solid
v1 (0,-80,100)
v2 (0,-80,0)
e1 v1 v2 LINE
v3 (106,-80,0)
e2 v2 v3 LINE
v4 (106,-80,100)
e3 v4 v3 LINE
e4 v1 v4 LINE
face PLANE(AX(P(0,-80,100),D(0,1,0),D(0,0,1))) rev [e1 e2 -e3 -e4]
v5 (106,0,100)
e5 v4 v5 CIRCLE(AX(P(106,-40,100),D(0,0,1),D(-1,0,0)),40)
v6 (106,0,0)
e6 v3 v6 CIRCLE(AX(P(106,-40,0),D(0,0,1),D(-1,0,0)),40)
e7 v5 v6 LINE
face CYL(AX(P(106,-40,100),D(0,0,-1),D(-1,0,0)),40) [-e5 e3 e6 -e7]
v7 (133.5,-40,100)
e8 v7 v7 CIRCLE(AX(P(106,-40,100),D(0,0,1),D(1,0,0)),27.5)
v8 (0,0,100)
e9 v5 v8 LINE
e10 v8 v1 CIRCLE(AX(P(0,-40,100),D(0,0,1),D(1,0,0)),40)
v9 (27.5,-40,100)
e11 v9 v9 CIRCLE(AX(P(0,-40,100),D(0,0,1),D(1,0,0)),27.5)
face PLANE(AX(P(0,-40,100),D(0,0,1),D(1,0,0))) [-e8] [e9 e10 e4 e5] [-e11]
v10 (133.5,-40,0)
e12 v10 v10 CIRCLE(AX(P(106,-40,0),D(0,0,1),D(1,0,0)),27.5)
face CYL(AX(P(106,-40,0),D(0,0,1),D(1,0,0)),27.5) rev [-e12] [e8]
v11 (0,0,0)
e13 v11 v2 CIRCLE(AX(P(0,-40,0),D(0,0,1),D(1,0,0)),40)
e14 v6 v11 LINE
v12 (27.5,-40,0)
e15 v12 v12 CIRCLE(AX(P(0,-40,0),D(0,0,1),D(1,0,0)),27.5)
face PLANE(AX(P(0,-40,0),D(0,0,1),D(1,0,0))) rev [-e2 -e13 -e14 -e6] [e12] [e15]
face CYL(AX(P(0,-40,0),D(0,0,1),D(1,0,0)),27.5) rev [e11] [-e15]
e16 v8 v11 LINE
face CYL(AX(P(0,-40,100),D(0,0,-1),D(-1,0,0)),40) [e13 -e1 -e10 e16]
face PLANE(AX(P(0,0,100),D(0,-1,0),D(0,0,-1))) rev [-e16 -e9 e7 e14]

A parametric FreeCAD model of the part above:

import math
import FreeCAD as App
import Part
import Sketcher
Q = App.Units.Quantity

doc = App.newDocument("Part")
body = doc.addObject("PartDesign::Body", "Body")

sketch1 = body.newObject("Sketcher::SketchObject", "Sketch")
sketch1.AttachmentSupport = (doc.getObject("XY_Plane"), [""])
sketch1.MapMode = "FlatFace"
sketch1.addGeometry(Part.LineSegment(App.Vector(106, 0, 0), App.Vector(0, 0, 0)), False)
sketch1.addGeometry(Part.ArcOfCircle(Part.Circle(App.Vector(0, -40, 0), App.Vector(0, 0, 1), 40), math.radians(90), math.radians(270)), False)
sketch1.addGeometry(Part.LineSegment(App.Vector(0, -80, 0), App.Vector(106, -80, 0)), False)
sketch1.addGeometry(Part.ArcOfCircle(Part.Circle(App.Vector(106, -40, 0), App.Vector(0, 0, 1), 40), math.radians(-90), math.radians(90)), False)
sketch1.addConstraint(Sketcher.Constraint("Tangent", 0, 2, 1, 1))
sketch1.addConstraint(Sketcher.Constraint("Tangent", 1, 2, 2, 1))
sketch1.addConstraint(Sketcher.Constraint("Tangent", 2, 2, 3, 1))
sketch1.addConstraint(Sketcher.Constraint("Tangent", 3, 2, 0, 1))
sketch1.addConstraint(Sketcher.Constraint("Horizontal", 0))
sketch1.addConstraint(Sketcher.Constraint("Horizontal", 2))
sketch1.addConstraint(Sketcher.Constraint("Coincident", 0, 2, -1, 1))
sketch1.addConstraint(Sketcher.Constraint("Radius", 1, Q("40 mm")))
sketch1.addConstraint(Sketcher.Constraint("DistanceX", 0, 2, 0, 1, Q("106 mm")))
pad1 = body.newObject("PartDesign::Pad", "Pad")
pad1.Profile = sketch1
pad1.Length = 100

sketch2 = body.newObject("Sketcher::SketchObject", "Sketch001")
sketch2.AttachmentSupport = (doc.getObject("XY_Plane"), [""])
sketch2.MapMode = "FlatFace"
sketch2.AttachmentOffset = App.Placement(App.Vector(0, 0, 100), App.Rotation())
sketch2.addGeometry(Part.Circle(App.Vector(0, -40, 0), App.Vector(0, 0, 1), 28), False)
sketch2.addGeometry(Part.Circle(App.Vector(106, -40, 0), App.Vector(0, 0, 1), 28), False)
sketch2.addConstraint(Sketcher.Constraint("Equal", 0, 1))
sketch2.addConstraint(Sketcher.Constraint("PointOnObject", 0, 3, -2))
sketch2.addConstraint(Sketcher.Constraint("Horizontal", 0, 3, 1, 3))
sketch2.addConstraint(Sketcher.Constraint("Diameter", 0, Q("55 mm")))
sketch2.addConstraint(Sketcher.Constraint("DistanceY", 0, 3, -1, 1, Q("40 mm")))
sketch2.addConstraint(Sketcher.Constraint("DistanceX", -1, 1, 1, 3, Q("106 mm")))
pocket1 = body.newObject("PartDesign::Pocket", "Pocket")
pocket1.Profile = sketch2
pocket1.Type = "ThroughAll"

doc.recompute()
